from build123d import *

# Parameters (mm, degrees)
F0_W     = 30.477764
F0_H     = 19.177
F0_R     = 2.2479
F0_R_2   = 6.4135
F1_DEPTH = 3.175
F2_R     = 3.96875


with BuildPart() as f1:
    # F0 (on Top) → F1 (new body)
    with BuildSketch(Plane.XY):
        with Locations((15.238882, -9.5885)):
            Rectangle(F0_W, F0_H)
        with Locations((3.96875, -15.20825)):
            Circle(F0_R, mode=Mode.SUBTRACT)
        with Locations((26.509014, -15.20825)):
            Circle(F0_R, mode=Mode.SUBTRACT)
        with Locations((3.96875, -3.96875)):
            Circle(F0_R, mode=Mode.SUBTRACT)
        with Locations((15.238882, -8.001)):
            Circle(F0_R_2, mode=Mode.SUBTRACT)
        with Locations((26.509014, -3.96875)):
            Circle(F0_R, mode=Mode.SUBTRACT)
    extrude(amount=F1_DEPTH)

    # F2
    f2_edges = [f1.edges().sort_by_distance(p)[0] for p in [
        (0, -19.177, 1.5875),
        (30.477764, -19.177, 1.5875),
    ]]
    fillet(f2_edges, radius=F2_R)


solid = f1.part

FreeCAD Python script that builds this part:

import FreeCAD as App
import Part
import Sketcher

V = App.Vector
Q = App.Units.Quantity


def edges_at(feature, points):
    """Names of the edges that pass closest to the given points."""
    edges = feature.Shape.Edges
    near = lambda p: min(range(len(edges)), key=lambda i: edges[i].distToShape(Part.Vertex(*p))[0])
    return sorted({f"Edge{near(p) + 1}" for p in points})


def add_polygon(sketch, points):
    """Adds a closed chain of lines whose ends are joined by coincident constraints."""
    first, n = sketch.GeometryCount, len(points)
    for a, b in zip(points, points[1:] + points[:1]):
        sketch.addGeometry(Part.LineSegment(App.Vector(*a, 0), App.Vector(*b, 0)), False)
    for i in range(n):
        sketch.addConstraint(Sketcher.Constraint("Coincident", first + i, 2, first + (i + 1) % n, 1))

doc = App.newDocument("Part")
body = doc.addObject("PartDesign::Body", "Body")

# Sketch on XY plane
sketch1 = body.newObject("Sketcher::SketchObject", "Sketch")
sketch1.AttachmentSupport = (doc.getObject("XY_Plane"), [""])
sketch1.MapMode = "FlatFace"
add_polygon(sketch1, [(0, 0), (0, -19.2), (30.5, -19.2), (30.5, 0)])  # lines 0-3
sketch1.addGeometry(Part.Circle(V(4, -15.2, 0), V(0, 0, 1), 2.2), False)  # 4
sketch1.addGeometry(Part.Circle(V(26.5, -15.2, 0), V(0, 0, 1), 2.2), False)  # 5
sketch1.addGeometry(Part.Circle(V(4, -4, 0), V(0, 0, 1), 2.2), False)  # 6
sketch1.addGeometry(Part.Circle(V(15.2, -8, 0), V(0, 0, 1), 6.4), False)  # 7
sketch1.addGeometry(Part.Circle(V(26.5, -4, 0), V(0, 0, 1), 2.2), False)  # 8
sketch1.addConstraint([
    Sketcher.Constraint("Vertical", 0),
    Sketcher.Constraint("Horizontal", 1),
    Sketcher.Constraint("Vertical", 2),
    Sketcher.Constraint("Horizontal", 3),
    Sketcher.Constraint("Coincident", 3, 2, -1, 1),
    Sketcher.Constraint("Equal", 4, 5),
    Sketcher.Constraint("Equal", 5, 6),
    Sketcher.Constraint("Equal", 6, 8),
    Sketcher.Constraint("Horizontal", 4, 3, 5, 3),
    Sketcher.Constraint("Horizontal", 6, 3, 8, 3),
    Sketcher.Constraint("Vertical", 4, 3, 6, 3),
    Sketcher.Constraint("Vertical", 5, 3, 8, 3),
    Sketcher.Constraint("Diameter", 4, Q("0.177 in")),
    Sketcher.Constraint("Diameter", 7, Q("0.505 in")),
    Sketcher.Constraint("DistanceY", 0, 2, 0, 1, Q("0.755 in")),
    Sketcher.Constraint("DistanceY", 0, 2, 7, 3, Q("0.44 in")),
    Sketcher.Constraint("DistanceX", -1, 1, 4, 3, Q("0.15625 in")),
    Sketcher.Constraint("DistanceY", 6, 3, -1, 1, Q("0.15625 in")),
    Sketcher.Constraint("DistanceY", 0, 2, 4, 3, Q("0.15625 in")),
    Sketcher.Constraint("DistanceX", 5, 3, 1, 2, Q("0.15625 in")),
    Sketcher.Constraint("DistanceX", 1, 1, 1, 2, Q("30.477764 mm")),
    Sketcher.Constraint("DistanceX", -1, 1, 7, 3, Q("15.238882 mm")),
])
pad1 = body.newObject("PartDesign::Pad", "Pad")
pad1.Profile = sketch1
pad1.Length = Q("0.125 in")
doc.recompute()

fillet = body.newObject("PartDesign::Fillet", "Fillet")
fillet.Base = (pad1, edges_at(pad1, [(0, -19.177, 1.587), (30.478, -19.177, 1.587)]))
fillet.Radius = Q("0.15625 in")

doc.recompute()
